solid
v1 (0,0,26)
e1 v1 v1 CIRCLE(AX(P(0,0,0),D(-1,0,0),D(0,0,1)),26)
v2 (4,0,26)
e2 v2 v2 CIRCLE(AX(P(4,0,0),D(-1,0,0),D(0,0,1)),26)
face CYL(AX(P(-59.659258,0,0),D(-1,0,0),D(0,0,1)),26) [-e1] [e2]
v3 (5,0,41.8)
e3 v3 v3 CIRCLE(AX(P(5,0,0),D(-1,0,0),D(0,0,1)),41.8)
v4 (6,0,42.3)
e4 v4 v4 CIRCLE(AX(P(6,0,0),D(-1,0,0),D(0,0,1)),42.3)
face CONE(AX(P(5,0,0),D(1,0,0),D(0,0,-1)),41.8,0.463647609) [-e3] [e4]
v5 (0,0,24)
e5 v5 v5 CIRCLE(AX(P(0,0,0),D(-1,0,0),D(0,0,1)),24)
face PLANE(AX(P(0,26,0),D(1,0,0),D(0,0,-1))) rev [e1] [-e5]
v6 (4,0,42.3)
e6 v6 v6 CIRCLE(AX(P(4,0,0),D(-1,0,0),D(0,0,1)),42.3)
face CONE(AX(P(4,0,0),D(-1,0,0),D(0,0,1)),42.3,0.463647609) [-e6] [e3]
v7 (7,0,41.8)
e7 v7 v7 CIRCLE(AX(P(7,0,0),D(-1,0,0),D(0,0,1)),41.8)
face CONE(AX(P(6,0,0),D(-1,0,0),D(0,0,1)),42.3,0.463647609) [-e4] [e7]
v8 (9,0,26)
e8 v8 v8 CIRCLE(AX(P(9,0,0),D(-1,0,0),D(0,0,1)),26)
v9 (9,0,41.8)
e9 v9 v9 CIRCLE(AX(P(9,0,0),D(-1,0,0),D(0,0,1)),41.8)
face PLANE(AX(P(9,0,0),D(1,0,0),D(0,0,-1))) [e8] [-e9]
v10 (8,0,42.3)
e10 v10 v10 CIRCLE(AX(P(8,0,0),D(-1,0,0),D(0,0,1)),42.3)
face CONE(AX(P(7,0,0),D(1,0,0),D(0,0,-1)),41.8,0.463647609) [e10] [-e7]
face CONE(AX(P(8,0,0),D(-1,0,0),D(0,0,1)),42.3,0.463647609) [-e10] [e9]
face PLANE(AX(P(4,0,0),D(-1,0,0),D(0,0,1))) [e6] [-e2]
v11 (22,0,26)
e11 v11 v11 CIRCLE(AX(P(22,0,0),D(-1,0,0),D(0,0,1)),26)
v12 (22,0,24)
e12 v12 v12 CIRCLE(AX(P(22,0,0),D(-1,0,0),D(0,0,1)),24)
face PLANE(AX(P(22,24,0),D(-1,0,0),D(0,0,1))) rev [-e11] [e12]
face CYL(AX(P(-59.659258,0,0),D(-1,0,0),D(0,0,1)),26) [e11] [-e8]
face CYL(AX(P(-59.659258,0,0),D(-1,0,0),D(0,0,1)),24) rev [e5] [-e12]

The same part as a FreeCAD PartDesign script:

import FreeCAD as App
import Part
import Sketcher
Q = App.Units.Quantity

doc = App.newDocument("Part")
body = doc.addObject("PartDesign::Body", "Body")

# Sketch on XY plane
sketch1 = body.newObject("Sketcher::SketchObject", "Sketch")
sketch1.AttachmentSupport = (doc.getObject("XY_Plane"), [""])
sketch1.MapMode = "FlatFace"
sketch1.addGeometry(Part.LineSegment(App.Vector(0, 26, 0), App.Vector(0, 24, 0)), False)
sketch1.addGeometry(Part.LineSegment(App.Vector(0, 24, 0), App.Vector(22, 24, 0)), False)
sketch1.addGeometry(Part.LineSegment(App.Vector(22, 24, 0), App.Vector(22, 26, 0)), False)
sketch1.addGeometry(Part.LineSegment(App.Vector(22, 26, 0), App.Vector(9, 26, 0)), False)
sketch1.addGeometry(Part.LineSegment(App.Vector(9, 26, 0), App.Vector(9, 41.8, 0)), False)
sketch1.addGeometry(Part.LineSegment(App.Vector(9, 41.8, 0), App.Vector(8, 42.3, 0)), False)
sketch1.addGeometry(Part.LineSegment(App.Vector(8, 42.3, 0), App.Vector(7, 41.8, 0)), False)
sketch1.addGeometry(Part.LineSegment(App.Vector(7, 41.8, 0), App.Vector(6, 42.3, 0)), False)
sketch1.addGeometry(Part.LineSegment(App.Vector(6, 42.3, 0), App.Vector(5, 41.8, 0)), False)
sketch1.addGeometry(Part.LineSegment(App.Vector(5, 41.8, 0), App.Vector(4, 42.3, 0)), False)
sketch1.addGeometry(Part.LineSegment(App.Vector(4, 42.3, 0), App.Vector(4, 26, 0)), False)
sketch1.addGeometry(Part.LineSegment(App.Vector(4, 26, 0), App.Vector(0, 26, 0)), False)
sketch1.addConstraint(Sketcher.Constraint("Coincident", 0, 2, 1, 1))
sketch1.addConstraint(Sketcher.Constraint("Coincident", 1, 2, 2, 1))
sketch1.addConstraint(Sketcher.Constraint("Coincident", 2, 2, 3, 1))
sketch1.addConstraint(Sketcher.Constraint("Coincident", 3, 2, 4, 1))
sketch1.addConstraint(Sketcher.Constraint("Coincident", 4, 2, 5, 1))
sketch1.addConstraint(Sketcher.Constraint("Coincident", 5, 2, 6, 1))
sketch1.addConstraint(Sketcher.Constraint("Coincident", 6, 2, 7, 1))
sketch1.addConstraint(Sketcher.Constraint("Coincident", 7, 2, 8, 1))
sketch1.addConstraint(Sketcher.Constraint("Coincident", 8, 2, 9, 1))
sketch1.addConstraint(Sketcher.Constraint("Coincident", 9, 2, 10, 1))
sketch1.addConstraint(Sketcher.Constraint("Coincident", 10, 2, 11, 1))
sketch1.addConstraint(Sketcher.Constraint("Coincident", 11, 2, 0, 1))
sketch1.addConstraint(Sketcher.Constraint("Vertical", 0))
sketch1.addConstraint(Sketcher.Constraint("Horizontal", 1))
sketch1.addConstraint(Sketcher.Constraint("Vertical", 2))
sketch1.addConstraint(Sketcher.Constraint("Horizontal", 3))
sketch1.addConstraint(Sketcher.Constraint("Vertical", 4))
sketch1.addConstraint(Sketcher.Constraint("Vertical", 10))
sketch1.addConstraint(Sketcher.Constraint("Horizontal", 11))
sketch1.addConstraint(Sketcher.Constraint("PointOnObject", 0, 2, -2))
sketch1.addConstraint(Sketcher.Constraint("Parallel", 5, 7))
sketch1.addConstraint(Sketcher.Constraint("Parallel", 6, 8))
sketch1.addConstraint(Sketcher.Constraint("Parallel", 7, 9))
sketch1.addConstraint(Sketcher.Constraint("Horizontal", 4, 2, 6, 2))
sketch1.addConstraint(Sketcher.Constraint("Horizontal", 5, 2, 7, 2))
sketch1.addConstraint(Sketcher.Constraint("Horizontal", 6, 2, 8, 2))
sketch1.addConstraint(Sketcher.Constraint("Horizontal", 7, 2, 9, 2))
sketch1.addConstraint(Sketcher.Constraint("Horizontal", 3, 2, 10, 2))
sketch1.addConstraint(Sketcher.Constraint("Equal", 5, 6))
sketch1.addConstraint(Sketcher.Constraint("DistanceX", 1, 1, 1, 2, Q("22 mm")))
sketch1.addConstraint(Sketcher.Constraint("DistanceX", 3, 2, 3, 1, Q("13 mm")))
sketch1.addConstraint(Sketcher.Constraint("DistanceX", 11, 2, 11, 1, Q("4 mm")))
sketch1.addConstraint(Sketcher.Constraint("DistanceY", 0, 2, 0, 1, Q("2 mm")))
sketch1.addConstraint(Sketcher.Constraint("DistanceY", 4, 1, 4, 2, Q("15.8 mm")))
sketch1.addConstraint(Sketcher.Constraint("DistanceY", 10, 2, 10, 1, Q("16.3 mm")))
sketch1.addConstraint(Sketcher.Constraint("DistanceY", -1, 1, 0, 2, Q("24 mm")))
revolution = body.newObject("PartDesign::Revolution", "Revolution")
revolution.Profile = sketch1
revolution.ReferenceAxis = (sketch1, ["H_Axis"])
revolution.Angle = 360

doc.recompute()
